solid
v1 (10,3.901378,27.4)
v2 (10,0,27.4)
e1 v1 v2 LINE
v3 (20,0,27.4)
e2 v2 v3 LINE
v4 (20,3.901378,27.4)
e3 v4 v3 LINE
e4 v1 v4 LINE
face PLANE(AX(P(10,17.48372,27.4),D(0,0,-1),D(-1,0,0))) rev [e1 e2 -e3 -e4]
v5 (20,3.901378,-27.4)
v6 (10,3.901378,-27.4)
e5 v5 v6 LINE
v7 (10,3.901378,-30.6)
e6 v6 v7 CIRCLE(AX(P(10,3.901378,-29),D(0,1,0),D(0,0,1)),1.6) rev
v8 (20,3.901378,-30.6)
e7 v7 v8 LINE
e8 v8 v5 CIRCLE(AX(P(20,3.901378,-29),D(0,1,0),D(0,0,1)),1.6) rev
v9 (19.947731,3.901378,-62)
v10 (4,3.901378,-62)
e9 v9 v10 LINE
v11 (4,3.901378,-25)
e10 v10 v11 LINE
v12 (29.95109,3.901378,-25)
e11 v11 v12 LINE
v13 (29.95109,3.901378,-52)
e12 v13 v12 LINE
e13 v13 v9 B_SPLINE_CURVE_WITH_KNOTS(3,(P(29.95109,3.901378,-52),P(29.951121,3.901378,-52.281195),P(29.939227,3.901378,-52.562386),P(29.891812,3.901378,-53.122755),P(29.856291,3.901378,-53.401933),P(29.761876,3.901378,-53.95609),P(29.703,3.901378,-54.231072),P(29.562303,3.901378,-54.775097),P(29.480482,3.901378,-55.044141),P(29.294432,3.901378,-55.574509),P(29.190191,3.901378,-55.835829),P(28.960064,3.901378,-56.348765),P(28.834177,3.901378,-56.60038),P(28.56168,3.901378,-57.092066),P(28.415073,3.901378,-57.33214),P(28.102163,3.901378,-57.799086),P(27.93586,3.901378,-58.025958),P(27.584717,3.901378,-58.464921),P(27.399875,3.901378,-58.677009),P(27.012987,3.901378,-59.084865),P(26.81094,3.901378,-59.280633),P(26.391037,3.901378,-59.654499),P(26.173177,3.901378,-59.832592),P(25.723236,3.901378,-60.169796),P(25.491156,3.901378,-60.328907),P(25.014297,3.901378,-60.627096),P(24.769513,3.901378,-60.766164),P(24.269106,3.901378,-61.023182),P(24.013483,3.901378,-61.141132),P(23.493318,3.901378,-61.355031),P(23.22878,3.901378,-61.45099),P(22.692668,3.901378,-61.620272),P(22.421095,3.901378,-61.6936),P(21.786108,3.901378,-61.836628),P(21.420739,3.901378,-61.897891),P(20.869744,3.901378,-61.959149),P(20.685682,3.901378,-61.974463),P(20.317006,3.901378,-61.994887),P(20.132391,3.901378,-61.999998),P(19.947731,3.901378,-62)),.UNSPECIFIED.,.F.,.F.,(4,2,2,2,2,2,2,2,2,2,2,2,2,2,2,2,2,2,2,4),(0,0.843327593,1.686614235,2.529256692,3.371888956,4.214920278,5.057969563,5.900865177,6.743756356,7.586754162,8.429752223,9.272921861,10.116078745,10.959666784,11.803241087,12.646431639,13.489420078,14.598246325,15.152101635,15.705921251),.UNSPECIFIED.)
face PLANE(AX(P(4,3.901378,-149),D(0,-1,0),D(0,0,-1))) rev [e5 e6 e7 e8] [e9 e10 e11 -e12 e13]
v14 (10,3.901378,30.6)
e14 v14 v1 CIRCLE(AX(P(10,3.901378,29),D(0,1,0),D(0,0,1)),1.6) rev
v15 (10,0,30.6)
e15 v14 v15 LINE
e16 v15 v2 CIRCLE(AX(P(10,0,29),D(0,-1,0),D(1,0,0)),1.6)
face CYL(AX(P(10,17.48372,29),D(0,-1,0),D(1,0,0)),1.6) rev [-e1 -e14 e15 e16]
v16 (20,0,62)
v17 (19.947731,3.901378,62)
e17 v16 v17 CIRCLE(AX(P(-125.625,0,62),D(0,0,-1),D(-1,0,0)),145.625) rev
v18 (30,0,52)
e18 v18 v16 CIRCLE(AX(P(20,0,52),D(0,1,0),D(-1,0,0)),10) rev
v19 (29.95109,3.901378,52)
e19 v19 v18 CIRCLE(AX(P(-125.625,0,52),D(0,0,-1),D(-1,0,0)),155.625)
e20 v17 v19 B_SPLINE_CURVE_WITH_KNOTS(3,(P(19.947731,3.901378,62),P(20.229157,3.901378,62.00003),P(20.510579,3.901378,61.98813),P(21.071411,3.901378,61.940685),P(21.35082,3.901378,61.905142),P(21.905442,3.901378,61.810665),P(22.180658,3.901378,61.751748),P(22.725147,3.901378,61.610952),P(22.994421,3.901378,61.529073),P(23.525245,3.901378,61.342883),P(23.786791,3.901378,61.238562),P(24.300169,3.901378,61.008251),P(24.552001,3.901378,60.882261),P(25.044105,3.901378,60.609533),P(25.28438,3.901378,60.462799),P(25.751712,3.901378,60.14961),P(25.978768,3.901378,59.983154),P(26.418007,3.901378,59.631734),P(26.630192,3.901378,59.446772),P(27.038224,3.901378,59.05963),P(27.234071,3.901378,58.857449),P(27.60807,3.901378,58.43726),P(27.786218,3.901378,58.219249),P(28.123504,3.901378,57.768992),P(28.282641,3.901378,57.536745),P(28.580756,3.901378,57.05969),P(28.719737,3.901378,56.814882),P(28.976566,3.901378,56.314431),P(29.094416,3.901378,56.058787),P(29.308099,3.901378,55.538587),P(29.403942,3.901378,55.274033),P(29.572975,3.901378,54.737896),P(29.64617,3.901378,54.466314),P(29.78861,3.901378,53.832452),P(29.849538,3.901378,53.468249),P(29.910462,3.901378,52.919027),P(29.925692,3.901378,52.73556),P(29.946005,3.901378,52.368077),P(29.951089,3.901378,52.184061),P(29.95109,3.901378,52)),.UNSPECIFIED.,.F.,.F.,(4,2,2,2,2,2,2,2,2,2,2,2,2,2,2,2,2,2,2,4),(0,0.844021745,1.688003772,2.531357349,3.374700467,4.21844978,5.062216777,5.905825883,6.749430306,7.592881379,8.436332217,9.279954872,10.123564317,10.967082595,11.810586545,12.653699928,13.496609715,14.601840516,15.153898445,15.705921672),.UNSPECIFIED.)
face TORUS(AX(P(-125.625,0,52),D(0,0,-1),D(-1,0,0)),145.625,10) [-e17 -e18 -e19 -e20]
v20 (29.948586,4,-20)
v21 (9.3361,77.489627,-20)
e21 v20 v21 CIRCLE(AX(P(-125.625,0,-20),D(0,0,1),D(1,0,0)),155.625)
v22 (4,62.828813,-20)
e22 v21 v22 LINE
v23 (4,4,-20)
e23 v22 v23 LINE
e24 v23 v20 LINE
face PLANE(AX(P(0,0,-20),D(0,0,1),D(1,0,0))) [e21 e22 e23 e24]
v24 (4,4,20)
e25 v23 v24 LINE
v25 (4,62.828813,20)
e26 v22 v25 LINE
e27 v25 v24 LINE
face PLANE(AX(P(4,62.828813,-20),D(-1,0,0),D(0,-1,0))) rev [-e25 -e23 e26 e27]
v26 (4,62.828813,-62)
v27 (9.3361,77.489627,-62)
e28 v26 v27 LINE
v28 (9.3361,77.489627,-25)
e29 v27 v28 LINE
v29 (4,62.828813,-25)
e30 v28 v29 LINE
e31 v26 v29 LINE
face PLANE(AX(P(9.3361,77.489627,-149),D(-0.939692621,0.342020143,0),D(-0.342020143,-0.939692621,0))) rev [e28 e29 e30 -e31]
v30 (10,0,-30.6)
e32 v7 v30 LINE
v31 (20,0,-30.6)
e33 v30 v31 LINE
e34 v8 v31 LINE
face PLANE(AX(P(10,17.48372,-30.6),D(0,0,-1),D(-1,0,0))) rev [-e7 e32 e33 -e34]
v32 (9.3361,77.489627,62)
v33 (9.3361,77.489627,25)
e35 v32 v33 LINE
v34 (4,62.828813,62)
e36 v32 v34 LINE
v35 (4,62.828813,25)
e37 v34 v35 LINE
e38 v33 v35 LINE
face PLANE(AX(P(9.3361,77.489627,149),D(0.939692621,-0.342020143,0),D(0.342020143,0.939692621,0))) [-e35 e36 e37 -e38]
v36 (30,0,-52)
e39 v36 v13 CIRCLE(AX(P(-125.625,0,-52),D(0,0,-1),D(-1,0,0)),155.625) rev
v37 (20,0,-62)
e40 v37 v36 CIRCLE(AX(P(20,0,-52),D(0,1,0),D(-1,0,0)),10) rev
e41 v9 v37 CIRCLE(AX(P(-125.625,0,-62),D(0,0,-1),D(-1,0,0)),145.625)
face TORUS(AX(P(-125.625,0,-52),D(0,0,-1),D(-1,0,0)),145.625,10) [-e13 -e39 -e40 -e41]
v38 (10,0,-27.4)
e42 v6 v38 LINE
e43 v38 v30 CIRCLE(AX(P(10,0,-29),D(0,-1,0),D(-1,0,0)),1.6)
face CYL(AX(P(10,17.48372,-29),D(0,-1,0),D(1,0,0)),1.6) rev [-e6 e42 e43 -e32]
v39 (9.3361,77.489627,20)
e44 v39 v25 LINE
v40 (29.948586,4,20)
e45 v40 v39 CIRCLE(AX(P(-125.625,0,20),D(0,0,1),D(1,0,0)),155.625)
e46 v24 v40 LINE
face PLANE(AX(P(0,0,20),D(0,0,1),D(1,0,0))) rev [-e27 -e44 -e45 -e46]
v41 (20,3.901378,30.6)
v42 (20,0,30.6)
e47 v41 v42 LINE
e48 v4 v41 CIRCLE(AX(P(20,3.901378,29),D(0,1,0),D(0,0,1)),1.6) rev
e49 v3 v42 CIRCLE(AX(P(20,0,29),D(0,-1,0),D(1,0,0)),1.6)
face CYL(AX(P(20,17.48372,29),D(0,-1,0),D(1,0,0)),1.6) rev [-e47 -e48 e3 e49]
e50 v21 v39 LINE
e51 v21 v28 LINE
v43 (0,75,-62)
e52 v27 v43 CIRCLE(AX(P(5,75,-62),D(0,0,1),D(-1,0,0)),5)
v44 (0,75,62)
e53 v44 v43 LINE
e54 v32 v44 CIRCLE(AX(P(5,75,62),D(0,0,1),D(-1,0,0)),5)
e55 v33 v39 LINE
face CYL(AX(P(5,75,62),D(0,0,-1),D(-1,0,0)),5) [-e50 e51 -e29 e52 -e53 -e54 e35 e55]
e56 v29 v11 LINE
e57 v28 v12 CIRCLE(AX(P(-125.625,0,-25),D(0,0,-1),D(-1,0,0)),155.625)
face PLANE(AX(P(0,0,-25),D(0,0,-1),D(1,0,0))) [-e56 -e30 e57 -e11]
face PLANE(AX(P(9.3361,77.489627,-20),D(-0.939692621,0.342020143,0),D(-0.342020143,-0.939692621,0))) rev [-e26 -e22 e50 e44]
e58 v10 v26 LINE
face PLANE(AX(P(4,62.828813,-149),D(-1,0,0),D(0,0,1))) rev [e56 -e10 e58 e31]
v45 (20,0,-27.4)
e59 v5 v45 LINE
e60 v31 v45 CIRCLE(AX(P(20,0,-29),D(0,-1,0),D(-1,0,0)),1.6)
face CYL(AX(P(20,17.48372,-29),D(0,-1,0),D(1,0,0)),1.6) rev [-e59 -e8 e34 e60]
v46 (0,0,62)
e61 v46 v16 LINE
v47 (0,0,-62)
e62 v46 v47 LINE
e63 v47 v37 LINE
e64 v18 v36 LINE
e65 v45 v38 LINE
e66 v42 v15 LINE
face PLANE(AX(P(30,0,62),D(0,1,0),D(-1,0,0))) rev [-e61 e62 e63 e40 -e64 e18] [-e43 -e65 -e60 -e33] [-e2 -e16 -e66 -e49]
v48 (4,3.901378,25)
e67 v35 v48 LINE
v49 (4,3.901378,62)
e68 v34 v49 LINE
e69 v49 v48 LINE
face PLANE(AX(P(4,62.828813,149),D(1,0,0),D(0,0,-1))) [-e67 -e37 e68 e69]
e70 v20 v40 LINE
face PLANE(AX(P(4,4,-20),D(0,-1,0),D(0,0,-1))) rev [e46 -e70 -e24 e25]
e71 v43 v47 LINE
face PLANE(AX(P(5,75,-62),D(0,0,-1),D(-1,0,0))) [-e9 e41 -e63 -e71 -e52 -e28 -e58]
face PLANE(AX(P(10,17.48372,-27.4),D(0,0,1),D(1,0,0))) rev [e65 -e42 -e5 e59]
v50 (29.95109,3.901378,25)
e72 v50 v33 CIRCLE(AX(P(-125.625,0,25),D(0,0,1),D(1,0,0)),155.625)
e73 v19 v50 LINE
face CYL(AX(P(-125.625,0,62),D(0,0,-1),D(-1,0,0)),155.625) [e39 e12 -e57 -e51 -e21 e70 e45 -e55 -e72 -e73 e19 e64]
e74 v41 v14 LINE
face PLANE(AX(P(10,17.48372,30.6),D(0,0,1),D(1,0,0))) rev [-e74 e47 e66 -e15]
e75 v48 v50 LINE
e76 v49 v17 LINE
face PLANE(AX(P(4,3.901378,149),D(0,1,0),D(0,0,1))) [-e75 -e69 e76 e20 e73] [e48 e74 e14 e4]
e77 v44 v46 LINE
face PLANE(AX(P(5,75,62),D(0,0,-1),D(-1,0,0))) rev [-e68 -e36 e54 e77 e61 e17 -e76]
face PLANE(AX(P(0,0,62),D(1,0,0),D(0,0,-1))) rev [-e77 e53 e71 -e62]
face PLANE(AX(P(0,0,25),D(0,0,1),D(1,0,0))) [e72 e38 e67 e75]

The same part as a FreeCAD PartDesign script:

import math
import FreeCAD as App
import Part
import Sketcher
from FreeCAD import Vector
Q = App.Units.Quantity


def edges_at(feature, points):
    """Names of the edges that pass closest to the given points."""
    edges = feature.Shape.Edges
    near = lambda p: min(range(len(edges)), key=lambda i: edges[i].distToShape(Part.Vertex(*p))[0])
    return sorted({f"Edge{near(p) + 1}" for p in points})


def add_polygon(sketch, points):
    """Adds a closed chain of lines whose ends are joined by coincident constraints."""
    first, n = sketch.GeometryCount, len(points)
    for a, b in zip(points, points[1:] + points[:1]):
        sketch.addGeometry(Part.LineSegment(App.Vector(*a, 0), App.Vector(*b, 0)), False)
    for i in range(n):
        sketch.addConstraint(Sketcher.Constraint("Coincident", first + i, 2, first + (i + 1) % n, 1))

doc = App.newDocument("Part")
body = doc.addObject("PartDesign::Body", "Body")

# Sketch on XY plane
sketch1 = body.newObject("Sketcher::SketchObject", "Sketch")
sketch1.AttachmentSupport = (doc.getObject("XY_Plane"), [""])
sketch1.MapMode = "FlatFace"
sketch1.addGeometry(Part.LineSegment(Vector(0, 75, 0), Vector(0, 0, 0)), False)
sketch1.addGeometry(Part.LineSegment(Vector(0, 0, 0), Vector(30, 0, 0)), False)
sketch1.addGeometry(Part.ArcOfCircle(Part.Circle(Vector(-126, 0, 0), Vector(0, 0, 1), 156), math.radians(0), math.radians(30)), False)
sketch1.addGeometry(Part.ArcOfCircle(Part.Circle(Vector(5, 75, 0), Vector(0, 0, 1), 5), math.radians(30), math.radians(180)), False)
sketch1.addConstraint(Sketcher.Constraint("Coincident", 0, 2, 1, 1))
sketch1.addConstraint(Sketcher.Constraint("Coincident", 1, 2, 2, 1))
sketch1.addConstraint(Sketcher.Constraint("Tangent", 2, 2, 3, 1))
sketch1.addConstraint(Sketcher.Constraint("Tangent", 3, 2, 0, 1))
sketch1.addConstraint(Sketcher.Constraint("Vertical", 0))
sketch1.addConstraint(Sketcher.Constraint("Horizontal", 1))
sketch1.addConstraint(Sketcher.Constraint("Coincident", 0, 2, -1, 1))
sketch1.addConstraint(Sketcher.Constraint("PointOnObject", 2, 3, -1))
sketch1.addConstraint(Sketcher.Constraint("Radius", 3, Q("5 mm")))
sketch1.addConstraint(Sketcher.Constraint("DistanceX", 1, 1, 1, 2, Q("30 mm")))
sketch1.addConstraint(Sketcher.Constraint("DistanceY", 0, 2, 0, 1, Q("75 mm")))
pad1 = body.newObject("PartDesign::Pad", "Pad")
pad1.Profile = sketch1
pad1.Length = 124
pad1.Midplane = True

# Sketch on XY plane
sketch2 = body.newObject("Sketcher::SketchObject", "Sketch001")
sketch2.AttachmentSupport = (doc.getObject("XY_Plane"), [""])
sketch2.MapMode = "FlatFace"
add_polygon(sketch2, [(9, 77), (4, 63), (4, 4), (30, 4), (32, 77)])  # lines 0-4
sketch2.addConstraint(Sketcher.Constraint("Vertical", 1))
sketch2.addConstraint(Sketcher.Constraint("Horizontal", 2))
sketch2.addConstraint(Sketcher.Constraint("Horizontal", 4))
sketch2.addConstraint(Sketcher.Constraint("Angle", 0, Q("-110 deg")))
sketch2.addConstraint(Sketcher.Constraint("DistanceX", -1, 1, 0, 2, Q("4 mm")))
sketch2.addConstraint(Sketcher.Constraint("DistanceY", -1, 1, 1, 2, Q("4 mm")))
sketch2.addConstraint(Sketcher.Constraint("DistanceX", 4, 2, 4, 1, Q("22.89234 mm")))
sketch2.addConstraint(Sketcher.Constraint("DistanceX", -1, 1, 4, 2, Q("9.3361 mm")))
sketch2.addConstraint(Sketcher.Constraint("Distance", 3, Q("73.524982 mm")))
sketch2.addConstraint(Sketcher.Constraint("DistanceX", 2, 1, 2, 2, Q("25.948586 mm")))
pocket1 = body.newObject("PartDesign::Pocket", "Pocket")
pocket1.Profile = sketch2
pocket1.Length = 40
pocket1.Midplane = True

# Sketch on XY plane
sketch3 = body.newObject("Sketcher::SketchObject", "Sketch002")
sketch3.AttachmentSupport = (doc.getObject("XY_Plane"), [""])
sketch3.MapMode = "FlatFace"
sketch3.AttachmentOffset = App.Placement(Vector(0, 0, 25), App.Rotation())
add_polygon(sketch3, [(9, 77), (4, 63), (4, 4), (35, 4), (22, 77)])  # lines 0-4
sketch3.addConstraint(Sketcher.Constraint("Vertical", 1))
sketch3.addConstraint(Sketcher.Constraint("Horizontal", 2))
sketch3.addConstraint(Sketcher.Constraint("Horizontal", 4))
sketch3.addConstraint(Sketcher.Constraint("Angle", 0, Q("-110 deg")))
sketch3.addConstraint(Sketcher.Constraint("DistanceX", -1, 1, 0, 2, Q("4 mm")))
sketch3.addConstraint(Sketcher.Constraint("DistanceX", -1, 1, 4, 2, Q("9.3361 mm")))
sketch3.addConstraint(Sketcher.Constraint("Distance", 3, Q("74.79134 mm")))
sketch3.addConstraint(Sketcher.Constraint("DistanceX", 2, 1, 2, 2, Q("30.928854 mm")))
sketch3.addConstraint(Sketcher.Constraint("DistanceX", 4, 2, 4, 1, Q("12.231834 mm")))
sketch3.addConstraint(Sketcher.Constraint("DistanceY", -1, 1, 1, 2, Q("3.901378 mm")))
pocket2 = body.newObject("PartDesign::Pocket", "Pocket001")
pocket2.Profile = sketch3
pocket2.Length = 124
pocket2.Reversed = True
doc.recompute()

mirrored = body.newObject("PartDesign::Mirrored", "Mirrored")
mirrored.Originals = [pocket2]
mirrored.MirrorPlane = (doc.getObject("XY_Plane"), [""])
body.Tip = mirrored

# Sketch on XZ plane
sketch4 = body.newObject("Sketcher::SketchObject", "Sketch003")
sketch4.AttachmentSupport = (doc.getObject("XZ_Plane"), [""])
sketch4.MapMode = "FlatFace"
sketch4.addGeometry(Part.LineSegment(Vector(20, 30.6, 0), Vector(10, 30.6, 0)), False)
sketch4.addGeometry(Part.ArcOfCircle(Part.Circle(Vector(10, 29, 0), Vector(0, 0, 1), 1.6), math.radians(90), math.radians(270)), False)
sketch4.addGeometry(Part.LineSegment(Vector(10, 27.4, 0), Vector(20, 27.4, 0)), False)
sketch4.addGeometry(Part.ArcOfCircle(Part.Circle(Vector(20, 29, 0), Vector(0, 0, 1), 1.6), math.radians(-90), math.radians(90)), False)
sketch4.addGeometry(Part.LineSegment(Vector(10, -30.6, 0), Vector(20, -30.6, 0)), False)
sketch4.addGeometry(Part.ArcOfCircle(Part.Circle(Vector(20, -29, 0), Vector(0, 0, 1), 1.6), math.radians(-90), math.radians(90)), False)
sketch4.addGeometry(Part.LineSegment(Vector(20, -27.4, 0), Vector(10, -27.4, 0)), False)
sketch4.addGeometry(Part.ArcOfCircle(Part.Circle(Vector(10, -29, 0), Vector(0, 0, 1), 1.6), math.radians(90), math.radians(270)), False)
sketch4.addConstraint(Sketcher.Constraint("Tangent", 0, 2, 1, 1))
sketch4.addConstraint(Sketcher.Constraint("Tangent", 1, 2, 2, 1))
sketch4.addConstraint(Sketcher.Constraint("Tangent", 2, 2, 3, 1))
sketch4.addConstraint(Sketcher.Constraint("Tangent", 3, 2, 0, 1))
sketch4.addConstraint(Sketcher.Constraint("Tangent", 4, 2, 5, 1))
sketch4.addConstraint(Sketcher.Constraint("Tangent", 5, 2, 6, 1))
sketch4.addConstraint(Sketcher.Constraint("Tangent", 6, 2, 7, 1))
sketch4.addConstraint(Sketcher.Constraint("Tangent", 7, 2, 4, 1))
sketch4.addConstraint(Sketcher.Constraint("Horizontal", 0))
sketch4.addConstraint(Sketcher.Constraint("Horizontal", 2))
sketch4.addConstraint(Sketcher.Constraint("Horizontal", 4))
sketch4.addConstraint(Sketcher.Constraint("Horizontal", 6))
sketch4.addConstraint(Sketcher.Constraint("Equal", 3, 5))
sketch4.addConstraint(Sketcher.Constraint("Symmetric", 3, 3, 5, 3, -1))
sketch4.addConstraint(Sketcher.Constraint("Vertical", 1, 3, 7, 3))
sketch4.addConstraint(Sketcher.Constraint("Radius", 1, Q("1.6 mm")))
sketch4.addConstraint(Sketcher.Constraint("DistanceX", 0, 2, 0, 1, Q("10 mm")))
sketch4.addConstraint(Sketcher.Constraint("DistanceX", -1, 1, 1, 3, Q("10 mm")))
sketch4.addConstraint(Sketcher.Constraint("DistanceY", -1, 1, 1, 3, Q("29 mm")))
pocket3 = body.newObject("PartDesign::Pocket", "Pocket002")
pocket3.Profile = sketch4
pocket3.Length = 3.901378
doc.recompute()

fillet = body.newObject("PartDesign::Fillet", "Fillet")
fillet.Base = (pocket3, edges_at(pocket3, [(29.988, 1.951, -62), (29.988, 1.951, 62)]))
fillet.Radius = 10

doc.recompute()
